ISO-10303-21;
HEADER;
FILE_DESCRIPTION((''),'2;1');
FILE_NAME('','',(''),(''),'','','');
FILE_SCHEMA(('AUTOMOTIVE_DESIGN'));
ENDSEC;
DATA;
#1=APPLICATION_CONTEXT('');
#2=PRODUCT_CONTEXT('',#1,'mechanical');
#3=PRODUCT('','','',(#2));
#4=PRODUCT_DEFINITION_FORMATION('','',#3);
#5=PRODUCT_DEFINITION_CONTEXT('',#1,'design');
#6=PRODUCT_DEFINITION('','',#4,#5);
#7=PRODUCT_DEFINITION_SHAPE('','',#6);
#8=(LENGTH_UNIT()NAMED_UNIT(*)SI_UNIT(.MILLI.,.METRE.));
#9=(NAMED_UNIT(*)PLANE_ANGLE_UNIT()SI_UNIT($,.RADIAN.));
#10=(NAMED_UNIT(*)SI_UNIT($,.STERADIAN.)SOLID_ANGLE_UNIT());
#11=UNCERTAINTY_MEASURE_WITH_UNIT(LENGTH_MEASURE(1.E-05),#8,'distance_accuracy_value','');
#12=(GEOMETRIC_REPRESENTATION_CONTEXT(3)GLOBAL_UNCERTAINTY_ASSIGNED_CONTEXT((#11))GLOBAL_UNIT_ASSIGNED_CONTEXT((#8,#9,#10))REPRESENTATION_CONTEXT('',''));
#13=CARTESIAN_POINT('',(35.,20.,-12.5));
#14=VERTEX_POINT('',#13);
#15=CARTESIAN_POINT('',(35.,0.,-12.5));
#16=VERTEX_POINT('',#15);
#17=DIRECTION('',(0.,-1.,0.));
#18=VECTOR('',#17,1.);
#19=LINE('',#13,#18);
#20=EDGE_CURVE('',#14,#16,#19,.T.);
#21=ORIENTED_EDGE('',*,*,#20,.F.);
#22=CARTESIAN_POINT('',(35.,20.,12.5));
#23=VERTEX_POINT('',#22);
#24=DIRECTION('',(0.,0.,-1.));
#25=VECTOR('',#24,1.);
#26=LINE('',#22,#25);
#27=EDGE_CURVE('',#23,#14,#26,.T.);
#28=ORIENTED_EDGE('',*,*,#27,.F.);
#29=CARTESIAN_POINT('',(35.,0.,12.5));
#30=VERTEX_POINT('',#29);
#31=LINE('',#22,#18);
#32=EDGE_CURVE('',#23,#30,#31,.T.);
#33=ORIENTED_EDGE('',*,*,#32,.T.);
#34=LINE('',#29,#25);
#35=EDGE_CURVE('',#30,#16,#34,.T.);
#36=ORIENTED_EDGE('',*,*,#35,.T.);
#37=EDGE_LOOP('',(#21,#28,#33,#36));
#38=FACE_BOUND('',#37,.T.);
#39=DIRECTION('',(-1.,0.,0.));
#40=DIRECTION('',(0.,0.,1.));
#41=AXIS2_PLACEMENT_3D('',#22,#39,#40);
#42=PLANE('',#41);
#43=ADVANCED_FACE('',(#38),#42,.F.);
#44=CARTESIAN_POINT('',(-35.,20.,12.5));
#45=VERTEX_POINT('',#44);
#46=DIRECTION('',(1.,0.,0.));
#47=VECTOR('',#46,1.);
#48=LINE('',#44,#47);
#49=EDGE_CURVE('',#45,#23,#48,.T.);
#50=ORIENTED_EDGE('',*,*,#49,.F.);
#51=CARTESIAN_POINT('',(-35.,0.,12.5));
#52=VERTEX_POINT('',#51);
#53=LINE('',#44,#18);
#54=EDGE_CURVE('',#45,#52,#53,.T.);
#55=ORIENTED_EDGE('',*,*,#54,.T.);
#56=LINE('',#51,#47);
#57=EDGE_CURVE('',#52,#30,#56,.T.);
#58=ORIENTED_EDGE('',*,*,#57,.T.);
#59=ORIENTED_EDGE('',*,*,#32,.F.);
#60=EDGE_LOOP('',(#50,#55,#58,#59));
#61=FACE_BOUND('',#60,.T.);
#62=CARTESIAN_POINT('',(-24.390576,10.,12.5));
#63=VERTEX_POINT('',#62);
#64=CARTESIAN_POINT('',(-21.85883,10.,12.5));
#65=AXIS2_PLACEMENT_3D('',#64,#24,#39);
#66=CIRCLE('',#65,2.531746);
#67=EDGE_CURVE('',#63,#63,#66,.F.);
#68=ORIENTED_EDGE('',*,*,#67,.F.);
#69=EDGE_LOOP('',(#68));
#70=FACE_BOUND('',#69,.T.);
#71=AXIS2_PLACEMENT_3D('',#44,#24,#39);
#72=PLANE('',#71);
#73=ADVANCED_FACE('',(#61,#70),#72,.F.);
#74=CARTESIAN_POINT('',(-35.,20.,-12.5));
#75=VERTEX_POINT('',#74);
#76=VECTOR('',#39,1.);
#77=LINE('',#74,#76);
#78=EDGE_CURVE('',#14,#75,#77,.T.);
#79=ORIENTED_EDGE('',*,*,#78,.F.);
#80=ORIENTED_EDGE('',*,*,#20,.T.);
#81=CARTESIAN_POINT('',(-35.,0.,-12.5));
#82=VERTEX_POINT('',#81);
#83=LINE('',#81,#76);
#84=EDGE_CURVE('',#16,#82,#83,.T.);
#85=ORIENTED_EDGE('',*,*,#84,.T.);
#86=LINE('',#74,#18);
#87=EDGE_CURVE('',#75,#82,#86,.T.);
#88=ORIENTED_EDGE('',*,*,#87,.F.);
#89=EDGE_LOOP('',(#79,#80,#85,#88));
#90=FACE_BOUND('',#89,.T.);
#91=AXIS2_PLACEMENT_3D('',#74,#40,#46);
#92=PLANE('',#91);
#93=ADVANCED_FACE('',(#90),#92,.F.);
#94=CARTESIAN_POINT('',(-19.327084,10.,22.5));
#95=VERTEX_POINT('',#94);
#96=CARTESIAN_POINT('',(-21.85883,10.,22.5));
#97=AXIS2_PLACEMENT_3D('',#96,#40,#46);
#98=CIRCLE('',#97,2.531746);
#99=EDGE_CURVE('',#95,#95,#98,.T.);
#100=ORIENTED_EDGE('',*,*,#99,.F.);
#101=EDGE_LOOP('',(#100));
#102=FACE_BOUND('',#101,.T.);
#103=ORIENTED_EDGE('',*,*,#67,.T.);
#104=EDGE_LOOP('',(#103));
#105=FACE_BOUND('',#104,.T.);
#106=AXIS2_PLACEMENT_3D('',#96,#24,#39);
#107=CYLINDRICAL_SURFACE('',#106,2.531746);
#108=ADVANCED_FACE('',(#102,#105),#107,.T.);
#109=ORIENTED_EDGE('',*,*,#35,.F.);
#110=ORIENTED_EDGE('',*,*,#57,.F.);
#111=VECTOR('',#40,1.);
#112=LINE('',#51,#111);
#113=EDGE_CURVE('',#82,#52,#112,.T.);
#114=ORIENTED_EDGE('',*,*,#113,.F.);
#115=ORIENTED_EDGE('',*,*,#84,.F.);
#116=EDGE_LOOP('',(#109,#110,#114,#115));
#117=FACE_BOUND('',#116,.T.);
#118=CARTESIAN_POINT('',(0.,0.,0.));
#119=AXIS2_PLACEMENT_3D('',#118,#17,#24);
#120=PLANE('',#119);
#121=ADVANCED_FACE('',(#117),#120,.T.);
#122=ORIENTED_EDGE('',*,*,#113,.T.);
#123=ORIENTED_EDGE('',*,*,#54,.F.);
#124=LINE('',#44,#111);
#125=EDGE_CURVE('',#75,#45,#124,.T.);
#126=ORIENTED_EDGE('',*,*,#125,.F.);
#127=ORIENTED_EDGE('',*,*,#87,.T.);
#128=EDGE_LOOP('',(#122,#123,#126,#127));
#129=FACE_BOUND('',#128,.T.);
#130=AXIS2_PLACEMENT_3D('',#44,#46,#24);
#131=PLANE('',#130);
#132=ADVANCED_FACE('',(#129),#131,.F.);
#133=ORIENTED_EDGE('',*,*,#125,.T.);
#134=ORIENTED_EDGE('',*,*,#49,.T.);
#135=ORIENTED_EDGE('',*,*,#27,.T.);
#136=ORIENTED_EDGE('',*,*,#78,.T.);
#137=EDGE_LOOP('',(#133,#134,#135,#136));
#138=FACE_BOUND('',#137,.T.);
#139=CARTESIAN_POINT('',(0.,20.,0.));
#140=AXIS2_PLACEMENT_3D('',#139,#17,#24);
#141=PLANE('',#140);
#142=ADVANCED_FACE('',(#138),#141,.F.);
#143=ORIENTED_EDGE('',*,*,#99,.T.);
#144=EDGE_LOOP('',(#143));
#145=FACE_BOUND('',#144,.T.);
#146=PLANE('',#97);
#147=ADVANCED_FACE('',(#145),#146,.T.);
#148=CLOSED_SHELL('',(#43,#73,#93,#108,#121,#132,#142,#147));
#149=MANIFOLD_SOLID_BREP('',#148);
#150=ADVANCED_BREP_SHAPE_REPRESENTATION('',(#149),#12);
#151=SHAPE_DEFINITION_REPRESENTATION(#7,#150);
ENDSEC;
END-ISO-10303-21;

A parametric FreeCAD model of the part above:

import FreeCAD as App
import Part
import Sketcher

V = App.Vector

doc = App.newDocument("Part")
body = doc.addObject("PartDesign::Body", "Body")

# Sketch on XZ plane
sketch1 = body.newObject("Sketcher::SketchObject", "Sketch")
sketch1.AttachmentSupport = (doc.getObject("XZ_Plane"), [""])
sketch1.MapMode = "FlatFace"
sketch1.addGeometry(Part.LineSegment(V(-35, -12, 0), V(-35, 12, 0)), False)
sketch1.addGeometry(Part.LineSegment(V(-35, 12, 0), V(35, 12, 0)), False)
sketch1.addGeometry(Part.LineSegment(V(35, 12, 0), V(35, -12, 0)), False)
sketch1.addGeometry(Part.LineSegment(V(35, -12, 0), V(-35, -12, 0)), False)
sketch1.addConstraint(Sketcher.Constraint("Coincident", 0, 2, 1, 1))
sketch1.addConstraint(Sketcher.Constraint("Coincident", 1, 2, 2, 1))
sketch1.addConstraint(Sketcher.Constraint("Coincident", 2, 2, 3, 1))
sketch1.addConstraint(Sketcher.Constraint("Coincident", 3, 2, 0, 1))
sketch1.addConstraint(Sketcher.Constraint("Vertical", 0))
sketch1.addConstraint(Sketcher.Constraint("Horizontal", 1))
sketch1.addConstraint(Sketcher.Constraint("Vertical", 2))
sketch1.addConstraint(Sketcher.Constraint("Horizontal", 3))
sketch1.addConstraint(Sketcher.Constraint("Symmetric", 0, 2, 2, 2, -1, 1))
sketch1.addConstraint(Sketcher.Constraint("DistanceX", 1, 1, 1, 2, 70.0))
sketch1.addConstraint(Sketcher.Constraint("DistanceY", 0, 1, 0, 2, 25.0))
pad1 = body.newObject("PartDesign::Pad", "Pad")
pad1.Profile = sketch1
pad1.Length = 20
pad1.Reversed = True

# Sketch on XY plane
sketch2 = body.newObject("Sketcher::SketchObject", "Sketch001")
sketch2.AttachmentSupport = (doc.getObject("XY_Plane"), [""])
sketch2.MapMode = "FlatFace"
sketch2.AttachmentOffset = App.Placement(V(0, 0, 12.5), App.Rotation())
sketch2.addGeometry(Part.Circle(V(-21.9, 10, 0), V(0, 0, 1), 2.5), False)
sketch2.addConstraint(Sketcher.Constraint("DistanceY", -1, 1, 0, 3, 10.0))
sketch2.addConstraint(Sketcher.Constraint("Diameter", 0, 5.063492))
sketch2.addConstraint(Sketcher.Constraint("DistanceX", 0, 3, -1, 1, 21.85883))
pad2 = body.newObject("PartDesign::Pad", "Pad001")
pad2.Profile = sketch2
pad2.Length = 10

doc.recompute()
